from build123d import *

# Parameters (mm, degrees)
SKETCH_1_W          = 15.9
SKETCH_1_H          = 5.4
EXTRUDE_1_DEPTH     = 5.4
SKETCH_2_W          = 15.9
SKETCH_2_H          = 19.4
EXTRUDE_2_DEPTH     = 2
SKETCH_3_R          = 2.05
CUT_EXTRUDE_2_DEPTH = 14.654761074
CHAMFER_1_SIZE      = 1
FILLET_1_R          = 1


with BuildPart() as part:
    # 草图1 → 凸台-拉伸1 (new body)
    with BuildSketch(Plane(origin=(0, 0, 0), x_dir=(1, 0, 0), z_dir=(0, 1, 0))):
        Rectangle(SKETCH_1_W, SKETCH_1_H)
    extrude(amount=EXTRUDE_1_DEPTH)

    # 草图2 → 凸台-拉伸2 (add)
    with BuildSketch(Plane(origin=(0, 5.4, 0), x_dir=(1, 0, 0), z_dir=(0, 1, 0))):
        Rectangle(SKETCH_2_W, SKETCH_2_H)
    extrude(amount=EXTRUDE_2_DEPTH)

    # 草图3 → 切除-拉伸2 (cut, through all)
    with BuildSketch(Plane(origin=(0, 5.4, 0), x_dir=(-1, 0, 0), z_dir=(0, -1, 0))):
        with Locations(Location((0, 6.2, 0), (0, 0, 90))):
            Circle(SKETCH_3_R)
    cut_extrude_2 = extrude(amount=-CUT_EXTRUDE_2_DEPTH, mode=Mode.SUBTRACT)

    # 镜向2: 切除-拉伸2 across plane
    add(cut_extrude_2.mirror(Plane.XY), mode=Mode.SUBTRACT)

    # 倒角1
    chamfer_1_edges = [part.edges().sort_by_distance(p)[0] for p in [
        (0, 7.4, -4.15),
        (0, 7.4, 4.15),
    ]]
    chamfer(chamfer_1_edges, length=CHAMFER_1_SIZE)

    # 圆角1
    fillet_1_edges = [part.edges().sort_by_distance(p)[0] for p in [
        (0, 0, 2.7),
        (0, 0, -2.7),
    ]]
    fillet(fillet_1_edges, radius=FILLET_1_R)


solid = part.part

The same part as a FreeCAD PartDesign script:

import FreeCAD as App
import Part
import Sketcher
from FreeCAD import Vector


def edges_at(feature, points):
    """Names of the edges that pass closest to the given points."""
    edges = feature.Shape.Edges
    near = lambda p: min(range(len(edges)), key=lambda i: edges[i].distToShape(Part.Vertex(*p))[0])
    return sorted({f"Edge{near(p) + 1}" for p in points})


def add_polygon(sketch, points):
    """Adds a closed chain of lines whose ends are joined by coincident constraints."""
    first, n = sketch.GeometryCount, len(points)
    for a, b in zip(points, points[1:] + points[:1]):
        sketch.addGeometry(Part.LineSegment(App.Vector(*a, 0), App.Vector(*b, 0)), False)
    for i in range(n):
        sketch.addConstraint(Sketcher.Constraint("Coincident", first + i, 2, first + (i + 1) % n, 1))

doc = App.newDocument("Part")
body = doc.addObject("PartDesign::Body", "Body")

sketch1 = body.newObject("Sketcher::SketchObject", "Sketch")
sketch1.AttachmentSupport = (doc.getObject("XZ_Plane"), [""])
sketch1.MapMode = "FlatFace"
add_polygon(sketch1, [(-8, -3), (-8, 3), (8, 3), (8, -3)])
sketch1.addConstraint([
    Sketcher.Constraint("Vertical", 0),
    Sketcher.Constraint("Horizontal", 1),
    Sketcher.Constraint("Vertical", 2),
    Sketcher.Constraint("Horizontal", 3),
    Sketcher.Constraint("Symmetric", 0, 2, 2, 2, -1, 1),
    Sketcher.Constraint("DistanceX", 1, 1, 1, 2, 15.9),
    Sketcher.Constraint("DistanceY", 0, 1, 0, 2, 5.4),
])
pad1 = body.newObject("PartDesign::Pad", "Pad")
pad1.Profile = sketch1
pad1.Length = 5.4
pad1.Reversed = True

sketch2 = body.newObject("Sketcher::SketchObject", "Sketch001")
sketch2.AttachmentSupport = (doc.getObject("XZ_Plane"), [""])
sketch2.MapMode = "FlatFace"
sketch2.AttachmentOffset = App.Placement(Vector(0, 0, -5.4), App.Rotation())
add_polygon(sketch2, [(-8, -10), (-8, 10), (8, 10), (8, -10)])
sketch2.addConstraint([
    Sketcher.Constraint("Vertical", 0),
    Sketcher.Constraint("Horizontal", 1),
    Sketcher.Constraint("Vertical", 2),
    Sketcher.Constraint("Horizontal", 3),
    Sketcher.Constraint("Symmetric", 0, 2, 2, 2, -1, 1),
    Sketcher.Constraint("DistanceX", 1, 1, 1, 2, 15.9),
    Sketcher.Constraint("DistanceY", 0, 1, 0, 2, 19.4),
])
pad2 = body.newObject("PartDesign::Pad", "Pad001")
pad2.Profile = sketch2
pad2.Length = 2
pad2.Reversed = True

sketch3 = body.newObject("Sketcher::SketchObject", "Sketch002")
sketch3.AttachmentSupport = (doc.getObject("XZ_Plane"), [""])
sketch3.MapMode = "FlatFace"
sketch3.AttachmentOffset = App.Placement(Vector(0, 0, -5.4), App.Rotation())
sketch3.addGeometry(Part.Circle(Vector(0, -6.2, 0), Vector(0, 0, 1), 2), False)
sketch3.addConstraint([
    Sketcher.Constraint("PointOnObject", 0, 3, -2),
    Sketcher.Constraint("Diameter", 0, 4.1),
    Sketcher.Constraint("DistanceY", 0, 3, -1, 1, 6.2),
])
pocket1 = body.newObject("PartDesign::Pocket", "Pocket")
pocket1.Profile = sketch3
pocket1.Type = "ThroughAll"
doc.recompute()

mirrored = body.newObject("PartDesign::Mirrored", "Mirrored")
mirrored.Originals = [pocket1]
mirrored.MirrorPlane = (doc.getObject("XY_Plane"), [""])
body.Tip = mirrored
doc.recompute()

chamfer = body.newObject("PartDesign::Chamfer", "Chamfer")
chamfer.Base = (mirrored, edges_at(mirrored, [(0, 7.4, -4.15), (0, 7.4, 4.15)]))
chamfer.Size = 1
doc.recompute()

fillet = body.newObject("PartDesign::Fillet", "Fillet")
fillet.Base = (chamfer, edges_at(chamfer, [(0, 0, 2.7), (0, 0, -2.7)]))
fillet.Radius = 1

doc.recompute()
